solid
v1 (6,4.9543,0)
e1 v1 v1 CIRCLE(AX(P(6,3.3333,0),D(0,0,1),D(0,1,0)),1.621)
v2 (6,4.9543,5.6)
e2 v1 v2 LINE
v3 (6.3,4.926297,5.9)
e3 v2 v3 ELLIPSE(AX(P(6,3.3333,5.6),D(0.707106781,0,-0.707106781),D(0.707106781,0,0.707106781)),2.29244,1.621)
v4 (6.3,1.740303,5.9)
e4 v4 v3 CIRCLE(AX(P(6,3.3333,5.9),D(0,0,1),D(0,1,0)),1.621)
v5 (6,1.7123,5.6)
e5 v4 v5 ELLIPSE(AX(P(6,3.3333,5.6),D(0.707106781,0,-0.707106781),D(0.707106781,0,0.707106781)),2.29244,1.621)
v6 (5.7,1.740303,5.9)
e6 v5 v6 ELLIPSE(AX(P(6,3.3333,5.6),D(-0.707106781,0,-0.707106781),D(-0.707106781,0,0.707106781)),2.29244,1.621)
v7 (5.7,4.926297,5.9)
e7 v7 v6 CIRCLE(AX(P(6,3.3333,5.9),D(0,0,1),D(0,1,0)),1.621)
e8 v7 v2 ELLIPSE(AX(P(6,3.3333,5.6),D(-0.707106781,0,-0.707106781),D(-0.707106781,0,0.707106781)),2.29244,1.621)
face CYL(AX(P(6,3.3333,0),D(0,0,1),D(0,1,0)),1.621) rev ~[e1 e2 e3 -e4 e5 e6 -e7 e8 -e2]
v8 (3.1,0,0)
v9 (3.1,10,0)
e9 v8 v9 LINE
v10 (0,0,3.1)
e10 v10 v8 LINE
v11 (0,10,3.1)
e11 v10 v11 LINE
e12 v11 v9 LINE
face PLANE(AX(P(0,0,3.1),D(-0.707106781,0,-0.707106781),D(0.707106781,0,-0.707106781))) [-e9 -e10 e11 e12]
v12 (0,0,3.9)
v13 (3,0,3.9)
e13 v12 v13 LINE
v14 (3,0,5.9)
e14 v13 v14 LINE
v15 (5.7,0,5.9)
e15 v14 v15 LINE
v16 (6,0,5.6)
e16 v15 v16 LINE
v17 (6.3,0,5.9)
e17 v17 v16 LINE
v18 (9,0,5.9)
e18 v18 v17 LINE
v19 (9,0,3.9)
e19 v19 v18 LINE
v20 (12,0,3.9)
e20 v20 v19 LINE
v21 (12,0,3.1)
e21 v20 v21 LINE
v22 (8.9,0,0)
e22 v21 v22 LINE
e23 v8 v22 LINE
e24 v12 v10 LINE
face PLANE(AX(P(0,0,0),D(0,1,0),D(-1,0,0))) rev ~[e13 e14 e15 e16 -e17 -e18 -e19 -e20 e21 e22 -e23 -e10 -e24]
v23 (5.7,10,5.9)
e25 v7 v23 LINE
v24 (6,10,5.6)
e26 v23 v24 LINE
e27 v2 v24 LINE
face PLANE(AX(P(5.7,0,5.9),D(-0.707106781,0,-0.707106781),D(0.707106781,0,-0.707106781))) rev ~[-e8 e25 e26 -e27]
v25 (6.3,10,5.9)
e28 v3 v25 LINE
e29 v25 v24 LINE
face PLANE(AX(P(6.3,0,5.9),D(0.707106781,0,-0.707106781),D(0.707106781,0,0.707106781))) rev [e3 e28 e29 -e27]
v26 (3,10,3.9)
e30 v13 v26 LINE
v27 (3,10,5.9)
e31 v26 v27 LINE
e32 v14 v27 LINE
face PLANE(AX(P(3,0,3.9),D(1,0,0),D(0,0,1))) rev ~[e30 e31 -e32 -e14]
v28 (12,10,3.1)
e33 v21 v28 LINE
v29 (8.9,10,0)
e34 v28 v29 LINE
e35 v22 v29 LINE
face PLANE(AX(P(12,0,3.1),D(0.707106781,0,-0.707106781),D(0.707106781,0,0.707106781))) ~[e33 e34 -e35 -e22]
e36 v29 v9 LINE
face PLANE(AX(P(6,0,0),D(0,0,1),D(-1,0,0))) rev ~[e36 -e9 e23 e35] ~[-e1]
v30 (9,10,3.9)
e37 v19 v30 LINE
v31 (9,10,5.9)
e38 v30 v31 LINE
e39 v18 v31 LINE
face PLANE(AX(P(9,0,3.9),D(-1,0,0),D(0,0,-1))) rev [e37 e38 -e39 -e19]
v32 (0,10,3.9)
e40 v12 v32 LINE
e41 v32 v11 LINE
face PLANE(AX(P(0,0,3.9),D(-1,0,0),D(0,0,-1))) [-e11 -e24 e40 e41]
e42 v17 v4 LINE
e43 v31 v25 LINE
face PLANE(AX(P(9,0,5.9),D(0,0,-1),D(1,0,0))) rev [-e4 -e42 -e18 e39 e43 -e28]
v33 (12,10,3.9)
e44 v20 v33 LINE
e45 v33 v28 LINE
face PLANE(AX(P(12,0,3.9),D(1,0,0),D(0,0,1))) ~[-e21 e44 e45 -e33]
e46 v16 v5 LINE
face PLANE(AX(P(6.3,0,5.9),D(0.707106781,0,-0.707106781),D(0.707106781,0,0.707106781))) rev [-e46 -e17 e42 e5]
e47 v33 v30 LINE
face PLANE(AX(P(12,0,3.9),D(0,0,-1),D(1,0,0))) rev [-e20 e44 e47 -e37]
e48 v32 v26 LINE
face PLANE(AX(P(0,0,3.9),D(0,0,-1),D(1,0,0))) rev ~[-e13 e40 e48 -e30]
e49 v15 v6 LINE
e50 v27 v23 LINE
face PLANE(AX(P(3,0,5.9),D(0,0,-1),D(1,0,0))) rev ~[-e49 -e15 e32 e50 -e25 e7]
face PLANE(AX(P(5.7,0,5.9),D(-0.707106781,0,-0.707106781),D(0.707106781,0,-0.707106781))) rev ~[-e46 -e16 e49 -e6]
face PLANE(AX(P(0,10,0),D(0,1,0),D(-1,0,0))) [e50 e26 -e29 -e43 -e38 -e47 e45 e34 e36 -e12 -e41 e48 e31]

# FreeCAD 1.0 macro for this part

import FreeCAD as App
import Part
import Sketcher
from FreeCAD import Vector
Q = App.Units.Quantity

doc = App.newDocument("Part")
body = doc.addObject("PartDesign::Body", "Body")

sketch1 = body.newObject("Sketcher::SketchObject", "Sketch")
sketch1.AttachmentSupport = (doc.getObject("XZ_Plane"), [""])
sketch1.MapMode = "FlatFace"
sketch1.addGeometry([
    Part.LineSegment(Vector(0, 3.1, 0), Vector(0, 3.9, 0)),
    Part.LineSegment(Vector(0, 3.9, 0), Vector(3, 3.9, 0)),
    Part.LineSegment(Vector(3, 3.9, 0), Vector(3, 5.9, 0)),
    Part.LineSegment(Vector(3, 5.9, 0), Vector(5.7, 5.9, 0)),
    Part.LineSegment(Vector(5.7, 5.9, 0), Vector(6, 5.6, 0)),
    Part.LineSegment(Vector(6, 5.6, 0), Vector(6, 0, 0)),
    Part.LineSegment(Vector(6, 0, 0), Vector(3.1, 0, 0)),
    Part.LineSegment(Vector(3.1, 0, 0), Vector(0, 3.1, 0)),
], False)
sketch1.addConstraint([
    Sketcher.Constraint("Coincident", 0, 2, 1, 1),
    Sketcher.Constraint("Coincident", 1, 2, 2, 1),
    Sketcher.Constraint("Coincident", 2, 2, 3, 1),
    Sketcher.Constraint("Coincident", 3, 2, 4, 1),
    Sketcher.Constraint("Coincident", 4, 2, 5, 1),
    Sketcher.Constraint("Coincident", 5, 2, 6, 1),
    Sketcher.Constraint("Coincident", 6, 2, 7, 1),
    Sketcher.Constraint("Coincident", 7, 2, 0, 1),
    Sketcher.Constraint("Vertical", 0),
    Sketcher.Constraint("Horizontal", 1),
    Sketcher.Constraint("Vertical", 2),
    Sketcher.Constraint("Horizontal", 3),
    Sketcher.Constraint("Vertical", 5),
    Sketcher.Constraint("Horizontal", 6),
    Sketcher.Constraint("PointOnObject", 0, 2, -2),
    Sketcher.Constraint("PointOnObject", 5, 2, -1),
    Sketcher.Constraint("Parallel", 4, 7),
    Sketcher.Constraint("DistanceX", 1, 1, 1, 2, Q("3 mm")),
    Sketcher.Constraint("DistanceY", 2, 1, 2, 2, Q("2 mm")),
    Sketcher.Constraint("Angle", 7, Q("135 deg")),
    Sketcher.Constraint("DistanceX", -1, 1, 4, 2, Q("6 mm")),
    Sketcher.Constraint("DistanceY", -1, 1, 2, 2, Q("5.9 mm")),
    Sketcher.Constraint("DistanceX", -1, 1, 6, 2, Q("3.1 mm")),
    Sketcher.Constraint("DistanceX", 3, 2, 4, 2, Q("0.3 mm")),
])
pad1 = body.newObject("PartDesign::Pad", "Pad")
pad1.Profile = sketch1
pad1.Length = 10
pad1.Reversed = True
doc.recompute()

datumplane = body.newObject("PartDesign::Plane", "DatumPlane")
datumplane.AttachmentSupport = (doc.getObject("YZ_Plane"), [""])
datumplane.MapMode = "FlatFace"
datumplane.AttachmentOffset = App.Placement(Vector(0, 0, 6), App.Rotation())
mirrored = body.newObject("PartDesign::Mirrored", "Mirrored")
mirrored.Originals = [pad1]
mirrored.MirrorPlane = (datumplane, [""])
body.Tip = mirrored

sketch2 = body.newObject("Sketcher::SketchObject", "Sketch001")
sketch2.AttachmentSupport = (doc.getObject("XY_Plane"), [""])
sketch2.MapMode = "FlatFace"
sketch2.addGeometry(Part.Circle(Vector(6, 3.3, 0), Vector(0, 0, 1), 1.6), False)
sketch2.addConstraint([
    Sketcher.Constraint("Diameter", 0, Q("3.242 mm")),
    Sketcher.Constraint("DistanceX", -1, 1, 0, 3, Q("6 mm")),
    Sketcher.Constraint("DistanceY", -1, 1, 0, 3, Q("3.3333 mm")),
])
doc.recompute()
hole = body.newObject("PartDesign::Hole", "Hole")
hole.Profile = sketch2
hole.ThreadType = "None"
hole.Diameter = 3.242
hole.DepthType = "ThroughAll"
hole.Reversed = True

doc.recompute()
